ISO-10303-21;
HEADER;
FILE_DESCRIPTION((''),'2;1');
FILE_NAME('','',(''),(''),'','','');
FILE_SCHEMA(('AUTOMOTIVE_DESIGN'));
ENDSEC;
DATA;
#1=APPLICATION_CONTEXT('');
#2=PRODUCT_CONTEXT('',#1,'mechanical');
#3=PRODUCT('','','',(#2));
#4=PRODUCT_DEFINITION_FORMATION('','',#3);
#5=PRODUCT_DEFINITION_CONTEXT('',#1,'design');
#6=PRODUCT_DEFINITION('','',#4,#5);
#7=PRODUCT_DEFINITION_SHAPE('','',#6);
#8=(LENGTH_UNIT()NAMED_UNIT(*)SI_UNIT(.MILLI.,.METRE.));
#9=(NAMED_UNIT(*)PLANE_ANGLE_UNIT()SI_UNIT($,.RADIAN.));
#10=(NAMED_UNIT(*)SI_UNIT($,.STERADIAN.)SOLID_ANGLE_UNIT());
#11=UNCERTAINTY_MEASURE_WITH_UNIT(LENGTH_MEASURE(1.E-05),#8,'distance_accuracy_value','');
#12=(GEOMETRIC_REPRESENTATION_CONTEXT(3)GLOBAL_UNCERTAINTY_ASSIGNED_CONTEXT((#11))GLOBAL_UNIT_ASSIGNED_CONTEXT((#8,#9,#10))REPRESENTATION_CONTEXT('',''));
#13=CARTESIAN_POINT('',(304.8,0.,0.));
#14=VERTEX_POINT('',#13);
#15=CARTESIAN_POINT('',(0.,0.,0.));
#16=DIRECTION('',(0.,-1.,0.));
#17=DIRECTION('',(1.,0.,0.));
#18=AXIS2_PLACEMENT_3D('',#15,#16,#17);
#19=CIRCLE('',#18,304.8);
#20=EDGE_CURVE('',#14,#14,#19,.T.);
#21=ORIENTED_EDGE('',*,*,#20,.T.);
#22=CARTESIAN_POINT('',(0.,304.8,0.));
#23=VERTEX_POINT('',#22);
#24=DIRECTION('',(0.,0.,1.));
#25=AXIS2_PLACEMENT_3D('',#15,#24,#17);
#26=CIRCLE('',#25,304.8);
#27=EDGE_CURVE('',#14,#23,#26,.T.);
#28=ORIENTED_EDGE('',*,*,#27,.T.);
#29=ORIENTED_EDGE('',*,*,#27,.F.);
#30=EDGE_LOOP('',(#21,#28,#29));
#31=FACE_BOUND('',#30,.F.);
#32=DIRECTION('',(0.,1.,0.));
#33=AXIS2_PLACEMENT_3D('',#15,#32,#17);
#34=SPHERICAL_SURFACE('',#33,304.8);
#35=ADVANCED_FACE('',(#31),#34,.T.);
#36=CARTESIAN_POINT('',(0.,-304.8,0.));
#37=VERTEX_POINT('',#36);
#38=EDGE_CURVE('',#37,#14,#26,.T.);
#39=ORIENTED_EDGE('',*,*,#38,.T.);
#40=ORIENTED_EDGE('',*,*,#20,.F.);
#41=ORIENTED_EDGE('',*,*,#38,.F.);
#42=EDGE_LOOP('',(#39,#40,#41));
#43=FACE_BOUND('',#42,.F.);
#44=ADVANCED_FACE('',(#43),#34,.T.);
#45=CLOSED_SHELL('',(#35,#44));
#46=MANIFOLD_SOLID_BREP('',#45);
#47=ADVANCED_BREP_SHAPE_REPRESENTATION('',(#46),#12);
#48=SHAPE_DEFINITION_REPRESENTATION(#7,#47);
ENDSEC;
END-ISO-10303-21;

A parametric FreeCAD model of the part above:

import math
import FreeCAD as App
import Part
import Sketcher
from FreeCAD import Vector
Q = App.Units.Quantity

doc = App.newDocument("Part")
params = doc.addObject("Spreadsheet::Sheet", "Params")
for row, (alias, value) in enumerate([
    ("sketch1_radius", "12 in"),
    ("revolution_angle", "360 deg"),
], start=1):
    params.set(f"A{row}", alias)
    params.set(f"B{row}", "=" + value)
    params.setAlias(f"B{row}", alias)

body = doc.addObject("PartDesign::Body", "Body")

sketch1 = body.newObject("Sketcher::SketchObject", "Sketch")
sketch1.AttachmentSupport = (doc.getObject("XY_Plane"), [""])
sketch1.MapMode = "FlatFace"
sketch1.addGeometry([
    Part.ArcOfCircle(Part.Circle(Vector(0, 0, 0), Vector(0, 0, 1), 304.8), math.radians(-90), math.radians(90)),
    Part.LineSegment(Vector(0, 304.8, 0), Vector(0, -304.8, 0)),
], False)
sketch1.addConstraint([
    Sketcher.Constraint("Coincident", 0, 1, 1, 2),
    Sketcher.Constraint("Coincident", 1, 1, 0, 2),
    Sketcher.Constraint("Vertical", 1),
    Sketcher.Constraint("Coincident", 0, 3, -1, 1),
    Sketcher.Constraint("PointOnObject", 0, 1, -2),
    Sketcher.Constraint("Radius", 0, Q("12 in")),
])
sketch1.setExpression("Constraints[5]", "Params.sketch1_radius")
revolution = body.newObject("PartDesign::Revolution", "Revolution")
revolution.Profile = sketch1
revolution.ReferenceAxis = (sketch1, ["V_Axis"])
revolution.setExpression("Angle", "Params.revolution_angle")

doc.recompute()
